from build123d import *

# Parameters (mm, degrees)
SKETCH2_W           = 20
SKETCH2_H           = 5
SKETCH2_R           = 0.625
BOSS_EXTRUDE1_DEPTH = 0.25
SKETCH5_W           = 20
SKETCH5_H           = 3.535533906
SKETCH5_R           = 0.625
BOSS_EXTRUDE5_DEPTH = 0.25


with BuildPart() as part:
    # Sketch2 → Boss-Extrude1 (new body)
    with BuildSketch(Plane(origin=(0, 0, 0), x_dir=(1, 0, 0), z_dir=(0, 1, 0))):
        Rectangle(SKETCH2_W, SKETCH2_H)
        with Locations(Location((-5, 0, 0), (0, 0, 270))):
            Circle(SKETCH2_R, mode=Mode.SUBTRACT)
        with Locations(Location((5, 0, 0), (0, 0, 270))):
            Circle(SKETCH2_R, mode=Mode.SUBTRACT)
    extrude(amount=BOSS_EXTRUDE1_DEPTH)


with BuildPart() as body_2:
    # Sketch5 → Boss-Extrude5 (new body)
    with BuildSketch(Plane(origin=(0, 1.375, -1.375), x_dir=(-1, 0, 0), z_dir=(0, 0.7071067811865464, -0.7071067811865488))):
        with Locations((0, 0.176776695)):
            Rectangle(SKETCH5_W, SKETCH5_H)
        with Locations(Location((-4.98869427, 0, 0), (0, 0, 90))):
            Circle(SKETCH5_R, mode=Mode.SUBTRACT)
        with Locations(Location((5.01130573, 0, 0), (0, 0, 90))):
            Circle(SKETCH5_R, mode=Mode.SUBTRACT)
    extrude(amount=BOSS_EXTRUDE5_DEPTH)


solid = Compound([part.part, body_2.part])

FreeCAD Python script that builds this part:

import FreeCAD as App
import Part
import Sketcher

V = App.Vector


def add_polygon(sketch, points):
    """Adds a closed chain of lines whose ends are joined by coincident constraints."""
    first, n = sketch.GeometryCount, len(points)
    for a, b in zip(points, points[1:] + points[:1]):
        sketch.addGeometry(Part.LineSegment(App.Vector(*a, 0), App.Vector(*b, 0)), False)
    for i in range(n):
        sketch.addConstraint(Sketcher.Constraint("Coincident", first + i, 2, first + (i + 1) % n, 1))

doc = App.newDocument("Part")
body = doc.addObject("PartDesign::Body", "Body")

# Sketch on XZ plane
sketch1 = body.newObject("Sketcher::SketchObject", "Sketch")
sketch1.AttachmentSupport = (doc.getObject("XZ_Plane"), [""])
sketch1.MapMode = "FlatFace"
add_polygon(sketch1, [(-10, -2.5), (-10, 2.5), (10, 2.5), (10, -2.5)])  # lines 0-3
sketch1.addGeometry(Part.Circle(V(-5, 0, 0), V(0, 0, 1), 0.625), False)  # 4
sketch1.addGeometry(Part.Circle(V(5, 0, 0), V(0, 0, 1), 0.625), False)  # 5
sketch1.addConstraint([
    Sketcher.Constraint("Vertical", 0),
    Sketcher.Constraint("Horizontal", 1),
    Sketcher.Constraint("Vertical", 2),
    Sketcher.Constraint("Horizontal", 3),
    Sketcher.Constraint("Equal", 4, 5),
    Sketcher.Constraint("Symmetric", 4, 3, 5, 3, -1, 1),
    Sketcher.Constraint("Symmetric", 0, 2, 2, 2, -1, 1),
    Sketcher.Constraint("PointOnObject", 4, 3, -1),
    Sketcher.Constraint("Diameter", 4, 1.25),
    Sketcher.Constraint("DistanceX", 1, 1, 1, 2, 20.0),
    Sketcher.Constraint("DistanceY", 0, 1, 0, 2, 5.0),
    Sketcher.Constraint("DistanceX", 4, 3, -1, 1, 5.0),
])
pad1 = body.newObject("PartDesign::Pad", "Pad")
pad1.Profile = sketch1
pad1.Length = 0.25
pad1.Reversed = True
body2 = doc.addObject("PartDesign::Body", "Body001")

# Sketch on an angled plane
sketch2 = body2.newObject("Sketcher::SketchObject", "Sketch001")
sketch2.Placement = App.Placement(V(0, 1.375, -1.375), App.Rotation(V(-1, 0, 0), V(0, 0.707106781, 0.707106781), V(0, 0.707106781, -0.707106781), "ZXY"))
add_polygon(sketch2, [(-10, 1.944544), (-10, -1.59099), (10, -1.59099), (10, 1.944544)])  # lines 0-3
sketch2.addGeometry(Part.Circle(V(-4.988694, 0, 0), V(0, 0, 1), 0.625), False)  # 4
sketch2.addGeometry(Part.Circle(V(5.011306, 0, 0), V(0, 0, 1), 0.625), False)  # 5
sketch2.addConstraint([
    Sketcher.Constraint("Vertical", 0),
    Sketcher.Constraint("Horizontal", 1),
    Sketcher.Constraint("Vertical", 2),
    Sketcher.Constraint("Horizontal", 3),
    Sketcher.Constraint("Equal", 4, 5),
    Sketcher.Constraint("PointOnObject", 4, 3, -1),
    Sketcher.Constraint("PointOnObject", 5, 3, -1),
    Sketcher.Constraint("Diameter", 4, 1.25),
    Sketcher.Constraint("DistanceX", 1, 1, 1, 2, 20.0),
    Sketcher.Constraint("DistanceX", 0, 2, -1, 1, 10.0),
    Sketcher.Constraint("DistanceX", 4, 3, 5, 3, 10.0),
    Sketcher.Constraint("DistanceY", 0, 2, 0, 1, 3.535534),
    Sketcher.Constraint("DistanceY", 0, 2, -1, 1, 1.59099),
    Sketcher.Constraint("DistanceX", 4, 3, -1, 1, 4.988694),
])
pad2 = body2.newObject("PartDesign::Pad", "Pad001")
pad2.Profile = sketch2
pad2.Length = 0.25

doc.recompute()
